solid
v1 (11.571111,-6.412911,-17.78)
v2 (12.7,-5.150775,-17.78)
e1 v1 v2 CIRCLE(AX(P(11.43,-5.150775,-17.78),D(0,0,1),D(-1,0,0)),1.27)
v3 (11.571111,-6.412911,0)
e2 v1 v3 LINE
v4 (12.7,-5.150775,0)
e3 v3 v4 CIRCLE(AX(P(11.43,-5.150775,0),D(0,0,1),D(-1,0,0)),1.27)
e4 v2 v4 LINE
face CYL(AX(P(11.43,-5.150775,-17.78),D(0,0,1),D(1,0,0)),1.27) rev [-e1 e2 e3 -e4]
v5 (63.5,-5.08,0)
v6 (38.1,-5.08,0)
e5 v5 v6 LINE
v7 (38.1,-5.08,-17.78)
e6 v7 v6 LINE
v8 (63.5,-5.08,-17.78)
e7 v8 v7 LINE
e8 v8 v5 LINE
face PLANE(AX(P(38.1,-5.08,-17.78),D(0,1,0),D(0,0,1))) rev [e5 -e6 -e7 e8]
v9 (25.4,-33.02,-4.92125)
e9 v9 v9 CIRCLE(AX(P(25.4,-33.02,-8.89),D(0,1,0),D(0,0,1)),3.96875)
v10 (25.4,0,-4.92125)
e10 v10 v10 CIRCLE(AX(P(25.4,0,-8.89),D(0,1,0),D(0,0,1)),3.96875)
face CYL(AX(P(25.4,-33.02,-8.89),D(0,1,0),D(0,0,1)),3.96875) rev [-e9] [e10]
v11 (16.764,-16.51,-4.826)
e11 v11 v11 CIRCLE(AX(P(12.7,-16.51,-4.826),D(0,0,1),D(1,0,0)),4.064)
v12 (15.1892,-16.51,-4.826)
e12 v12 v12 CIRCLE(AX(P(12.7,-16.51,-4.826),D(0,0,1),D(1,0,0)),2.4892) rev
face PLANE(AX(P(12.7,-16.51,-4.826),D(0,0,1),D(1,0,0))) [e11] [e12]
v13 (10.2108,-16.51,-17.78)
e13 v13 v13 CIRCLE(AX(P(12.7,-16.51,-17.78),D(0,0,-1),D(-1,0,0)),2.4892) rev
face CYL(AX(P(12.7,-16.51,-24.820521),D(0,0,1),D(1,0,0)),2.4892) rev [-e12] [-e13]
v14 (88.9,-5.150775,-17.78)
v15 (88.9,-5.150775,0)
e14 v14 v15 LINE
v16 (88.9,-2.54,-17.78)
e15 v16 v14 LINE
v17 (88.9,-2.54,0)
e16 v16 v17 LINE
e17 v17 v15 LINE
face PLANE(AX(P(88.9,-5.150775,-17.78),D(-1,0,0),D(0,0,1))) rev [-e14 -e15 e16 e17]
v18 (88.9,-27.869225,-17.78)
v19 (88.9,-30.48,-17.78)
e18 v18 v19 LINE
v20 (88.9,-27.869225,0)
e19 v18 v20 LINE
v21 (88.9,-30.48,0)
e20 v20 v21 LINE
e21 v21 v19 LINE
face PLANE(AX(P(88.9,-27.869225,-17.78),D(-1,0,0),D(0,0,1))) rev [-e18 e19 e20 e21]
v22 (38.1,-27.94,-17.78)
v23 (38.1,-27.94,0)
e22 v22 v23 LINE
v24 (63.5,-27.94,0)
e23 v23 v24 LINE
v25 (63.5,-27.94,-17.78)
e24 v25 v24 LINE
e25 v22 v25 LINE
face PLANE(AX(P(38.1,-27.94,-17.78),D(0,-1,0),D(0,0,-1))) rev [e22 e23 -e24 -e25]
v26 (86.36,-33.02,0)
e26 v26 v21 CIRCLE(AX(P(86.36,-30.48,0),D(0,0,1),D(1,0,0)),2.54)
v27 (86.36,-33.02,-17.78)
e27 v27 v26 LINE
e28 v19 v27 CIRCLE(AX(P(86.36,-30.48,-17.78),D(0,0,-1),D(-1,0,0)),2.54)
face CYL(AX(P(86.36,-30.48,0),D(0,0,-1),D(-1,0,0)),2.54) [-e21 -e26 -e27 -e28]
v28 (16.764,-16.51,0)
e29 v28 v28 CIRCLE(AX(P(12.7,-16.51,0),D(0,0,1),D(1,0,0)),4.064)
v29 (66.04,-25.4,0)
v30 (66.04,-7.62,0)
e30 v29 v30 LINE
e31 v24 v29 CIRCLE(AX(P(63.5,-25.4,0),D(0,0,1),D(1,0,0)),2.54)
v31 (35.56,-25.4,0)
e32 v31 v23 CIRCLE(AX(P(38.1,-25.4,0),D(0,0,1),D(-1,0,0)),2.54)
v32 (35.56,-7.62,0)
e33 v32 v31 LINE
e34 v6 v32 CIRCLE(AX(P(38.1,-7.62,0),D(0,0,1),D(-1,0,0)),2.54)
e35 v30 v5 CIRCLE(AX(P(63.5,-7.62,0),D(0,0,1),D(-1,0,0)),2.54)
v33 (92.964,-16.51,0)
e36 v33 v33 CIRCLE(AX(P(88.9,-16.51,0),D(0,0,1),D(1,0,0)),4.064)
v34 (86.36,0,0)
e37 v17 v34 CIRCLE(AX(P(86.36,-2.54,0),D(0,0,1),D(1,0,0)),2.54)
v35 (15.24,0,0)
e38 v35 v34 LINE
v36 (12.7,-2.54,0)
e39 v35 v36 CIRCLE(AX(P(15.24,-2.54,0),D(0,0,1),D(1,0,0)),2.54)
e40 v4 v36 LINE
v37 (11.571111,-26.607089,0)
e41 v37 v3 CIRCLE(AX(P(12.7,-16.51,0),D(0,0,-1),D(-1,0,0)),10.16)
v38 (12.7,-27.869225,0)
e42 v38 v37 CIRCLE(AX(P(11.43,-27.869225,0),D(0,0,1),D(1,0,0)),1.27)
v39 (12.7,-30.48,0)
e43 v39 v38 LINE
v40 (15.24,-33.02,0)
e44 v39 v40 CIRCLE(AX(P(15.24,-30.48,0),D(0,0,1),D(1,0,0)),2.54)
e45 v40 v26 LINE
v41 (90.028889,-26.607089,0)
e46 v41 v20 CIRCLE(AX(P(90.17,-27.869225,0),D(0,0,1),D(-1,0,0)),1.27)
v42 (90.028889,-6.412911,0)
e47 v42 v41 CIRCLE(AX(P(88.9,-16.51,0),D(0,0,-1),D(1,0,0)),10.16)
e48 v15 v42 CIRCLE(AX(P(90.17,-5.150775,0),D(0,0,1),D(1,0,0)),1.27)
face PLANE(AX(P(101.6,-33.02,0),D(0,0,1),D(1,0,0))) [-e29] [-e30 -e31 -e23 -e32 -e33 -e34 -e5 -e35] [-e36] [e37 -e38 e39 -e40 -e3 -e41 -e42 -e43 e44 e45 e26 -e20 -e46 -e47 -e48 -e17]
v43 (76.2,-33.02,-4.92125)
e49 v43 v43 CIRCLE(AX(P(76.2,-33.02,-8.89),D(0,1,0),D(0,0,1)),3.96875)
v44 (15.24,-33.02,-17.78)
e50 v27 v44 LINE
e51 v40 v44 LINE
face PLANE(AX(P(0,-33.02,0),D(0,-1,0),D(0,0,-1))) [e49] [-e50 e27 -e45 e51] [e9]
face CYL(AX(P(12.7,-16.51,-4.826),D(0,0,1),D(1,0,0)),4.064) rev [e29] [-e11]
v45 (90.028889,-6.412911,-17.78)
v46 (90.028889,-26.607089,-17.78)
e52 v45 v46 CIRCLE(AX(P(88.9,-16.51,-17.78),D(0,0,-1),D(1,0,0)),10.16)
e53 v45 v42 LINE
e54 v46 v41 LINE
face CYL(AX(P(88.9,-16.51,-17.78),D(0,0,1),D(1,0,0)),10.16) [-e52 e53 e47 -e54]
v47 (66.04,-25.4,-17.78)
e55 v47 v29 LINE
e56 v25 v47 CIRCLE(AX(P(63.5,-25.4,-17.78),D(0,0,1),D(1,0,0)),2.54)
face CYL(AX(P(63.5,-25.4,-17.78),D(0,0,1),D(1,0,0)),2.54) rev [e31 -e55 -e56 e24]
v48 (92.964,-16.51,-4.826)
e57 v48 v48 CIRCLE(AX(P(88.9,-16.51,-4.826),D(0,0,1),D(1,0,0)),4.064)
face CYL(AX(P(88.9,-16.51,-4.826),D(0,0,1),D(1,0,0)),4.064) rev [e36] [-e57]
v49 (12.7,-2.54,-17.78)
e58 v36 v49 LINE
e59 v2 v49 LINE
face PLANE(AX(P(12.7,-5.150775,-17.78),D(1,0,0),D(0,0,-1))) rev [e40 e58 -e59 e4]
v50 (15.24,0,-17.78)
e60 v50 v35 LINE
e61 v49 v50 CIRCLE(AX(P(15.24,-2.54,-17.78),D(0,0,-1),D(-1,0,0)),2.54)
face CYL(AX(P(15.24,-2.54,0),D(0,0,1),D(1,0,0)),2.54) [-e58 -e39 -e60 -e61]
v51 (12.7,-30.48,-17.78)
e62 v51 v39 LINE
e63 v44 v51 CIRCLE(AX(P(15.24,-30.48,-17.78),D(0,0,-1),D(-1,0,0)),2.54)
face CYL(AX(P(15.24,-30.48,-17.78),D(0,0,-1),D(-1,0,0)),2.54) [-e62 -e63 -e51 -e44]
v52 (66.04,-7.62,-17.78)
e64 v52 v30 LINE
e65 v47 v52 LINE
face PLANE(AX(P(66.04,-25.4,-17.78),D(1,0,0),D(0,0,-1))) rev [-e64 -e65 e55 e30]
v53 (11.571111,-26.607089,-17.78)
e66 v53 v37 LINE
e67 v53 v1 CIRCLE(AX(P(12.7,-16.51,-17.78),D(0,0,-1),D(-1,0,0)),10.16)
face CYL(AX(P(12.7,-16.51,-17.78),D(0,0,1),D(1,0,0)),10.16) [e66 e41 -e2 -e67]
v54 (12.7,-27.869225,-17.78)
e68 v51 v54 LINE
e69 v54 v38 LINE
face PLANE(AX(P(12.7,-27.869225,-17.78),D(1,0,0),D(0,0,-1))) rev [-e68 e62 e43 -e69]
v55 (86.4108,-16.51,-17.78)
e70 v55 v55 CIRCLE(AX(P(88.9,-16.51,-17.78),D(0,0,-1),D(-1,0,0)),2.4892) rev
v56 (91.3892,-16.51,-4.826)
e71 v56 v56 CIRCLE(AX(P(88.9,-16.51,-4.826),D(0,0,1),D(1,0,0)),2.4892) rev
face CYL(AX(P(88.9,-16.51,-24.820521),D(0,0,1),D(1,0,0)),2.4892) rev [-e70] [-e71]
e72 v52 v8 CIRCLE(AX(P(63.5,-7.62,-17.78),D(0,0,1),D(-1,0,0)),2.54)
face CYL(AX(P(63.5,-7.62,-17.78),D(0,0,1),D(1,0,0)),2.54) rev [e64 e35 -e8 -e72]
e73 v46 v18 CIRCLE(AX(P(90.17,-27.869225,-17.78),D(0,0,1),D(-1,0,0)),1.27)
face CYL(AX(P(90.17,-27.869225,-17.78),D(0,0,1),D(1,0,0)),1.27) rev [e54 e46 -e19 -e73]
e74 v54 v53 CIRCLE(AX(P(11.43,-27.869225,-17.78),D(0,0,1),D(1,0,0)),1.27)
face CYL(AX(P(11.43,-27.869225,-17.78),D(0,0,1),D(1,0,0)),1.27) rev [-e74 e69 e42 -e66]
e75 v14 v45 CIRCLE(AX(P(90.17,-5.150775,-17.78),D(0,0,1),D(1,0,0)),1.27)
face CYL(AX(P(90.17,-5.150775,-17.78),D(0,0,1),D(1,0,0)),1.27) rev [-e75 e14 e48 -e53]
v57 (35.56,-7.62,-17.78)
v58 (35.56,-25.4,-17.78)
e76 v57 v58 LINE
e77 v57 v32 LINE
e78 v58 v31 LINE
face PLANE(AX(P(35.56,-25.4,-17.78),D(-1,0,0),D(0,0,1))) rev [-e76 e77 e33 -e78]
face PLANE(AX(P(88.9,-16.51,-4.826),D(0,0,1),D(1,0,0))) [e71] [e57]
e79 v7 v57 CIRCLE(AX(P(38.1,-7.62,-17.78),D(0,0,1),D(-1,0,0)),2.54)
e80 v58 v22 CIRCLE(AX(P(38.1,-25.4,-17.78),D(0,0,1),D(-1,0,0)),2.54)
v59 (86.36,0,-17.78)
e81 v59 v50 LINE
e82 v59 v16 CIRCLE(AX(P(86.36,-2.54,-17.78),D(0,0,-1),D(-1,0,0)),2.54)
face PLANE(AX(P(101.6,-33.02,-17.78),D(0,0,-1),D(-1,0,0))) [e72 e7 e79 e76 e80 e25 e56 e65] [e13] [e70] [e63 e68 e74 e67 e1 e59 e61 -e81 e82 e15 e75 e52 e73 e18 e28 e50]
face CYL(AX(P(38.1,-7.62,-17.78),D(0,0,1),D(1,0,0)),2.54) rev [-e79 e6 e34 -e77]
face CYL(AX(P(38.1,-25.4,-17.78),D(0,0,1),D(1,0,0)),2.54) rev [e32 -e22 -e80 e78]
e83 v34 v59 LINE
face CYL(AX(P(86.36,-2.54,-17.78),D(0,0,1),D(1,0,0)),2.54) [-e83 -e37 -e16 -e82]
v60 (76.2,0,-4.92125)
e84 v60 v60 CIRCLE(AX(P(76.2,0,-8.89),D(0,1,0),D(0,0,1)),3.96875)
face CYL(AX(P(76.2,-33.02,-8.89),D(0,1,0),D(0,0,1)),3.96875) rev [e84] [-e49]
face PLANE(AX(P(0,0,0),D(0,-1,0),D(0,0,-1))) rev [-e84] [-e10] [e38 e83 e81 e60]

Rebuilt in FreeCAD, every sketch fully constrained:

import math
import FreeCAD as App
import Part
import Sketcher
from FreeCAD import Vector
Q = App.Units.Quantity


def edges_at(feature, points):
    """Names of the edges that pass closest to the given points."""
    edges = feature.Shape.Edges
    near = lambda p: min(range(len(edges)), key=lambda i: edges[i].distToShape(Part.Vertex(*p))[0])
    return sorted({f"Edge{near(p) + 1}" for p in points})


def add_polygon(sketch, points):
    """Adds a closed chain of lines whose ends are joined by coincident constraints."""
    first, n = sketch.GeometryCount, len(points)
    for a, b in zip(points, points[1:] + points[:1]):
        sketch.addGeometry(Part.LineSegment(App.Vector(*a, 0), App.Vector(*b, 0)), False)
    for i in range(n):
        sketch.addConstraint(Sketcher.Constraint("Coincident", first + i, 2, first + (i + 1) % n, 1))

doc = App.newDocument("Part")
params = doc.addObject("Spreadsheet::Sheet", "Params")
for row, (alias, value) in enumerate([
    ("sketch1_width", "4 in"),
    ("sketch1_diameter", "0.3125 in"),
    ("sketch1_height", "0.7 in"),
    ("pad1_length", "1.3 in"),
    ("sketch2_diameter", "0.196 in"),
    ("pocket1_length", "0.7 in"),
    ("sketch3_diameter", "0.32 in"),
    ("pocket2_length", "0.19 in"),
    ("sketch4_radius", "0.4 in"),
    ("sketch4_radius2", "0.05 in"),
    ("sketch4_width", "0.5 in"),
    ("sketch4_height", "1.3 in"),
    ("fillet_radius", "0.1 in"),
    ("sketch5_radius", "0.1 in"),
    ("sketch5_width", "1 in"),
    ("sketch5_height", "0.7 in"),
], start=1):
    params.set(f"A{row}", alias)
    params.set(f"B{row}", "=" + value)
    params.setAlias(f"B{row}", alias)

body = doc.addObject("PartDesign::Body", "Body")

sketch1 = body.newObject("Sketcher::SketchObject", "Sketch")
sketch1.AttachmentSupport = (doc.getObject("XZ_Plane"), [""])
sketch1.MapMode = "FlatFace"
add_polygon(sketch1, [(0, -17.8), (0, 0), (101.6, 0), (101.6, -17.8)])
sketch1.addGeometry(Part.Circle(Vector(25.4, -8.9, 0), Vector(0, 0, 1), 4), False)
sketch1.addGeometry(Part.Circle(Vector(76.2, -8.9, 0), Vector(0, 0, 1), 4), False)
sketch1.addConstraint([
    Sketcher.Constraint("Vertical", 0),
    Sketcher.Constraint("Horizontal", 1),
    Sketcher.Constraint("Vertical", 2),
    Sketcher.Constraint("Horizontal", 3),
    Sketcher.Constraint("Coincident", 0, 2, -1, 1),
    Sketcher.Constraint("Equal", 4, 5),
    Sketcher.Constraint("Horizontal", 4, 3, 5, 3),
    Sketcher.Constraint("DistanceX", 1, 1, 1, 2, Q("4 in")),
    Sketcher.Constraint("Diameter", 4, Q("0.3125 in")),
    Sketcher.Constraint("DistanceY", 0, 1, 0, 2, Q("0.7 in")),
    Sketcher.Constraint("DistanceX", -1, 1, 4, 3, Q("1 in")),
    Sketcher.Constraint("DistanceX", -1, 1, 5, 3, Q("3 in")),
    Sketcher.Constraint("DistanceY", 4, 3, -1, 1, Q("0.35 in")),
])
sketch1.setExpression("Constraints[11]", "Params.sketch1_width")
sketch1.setExpression("Constraints[12]", "Params.sketch1_diameter")
sketch1.setExpression("Constraints[13]", "Params.sketch1_height")
pad1 = body.newObject("PartDesign::Pad", "Pad")
pad1.Profile = sketch1
pad1.setExpression("Length", "Params.pad1_length")

sketch2 = body.newObject("Sketcher::SketchObject", "Sketch001")
sketch2.AttachmentSupport = (doc.getObject("XY_Plane"), [""])
sketch2.MapMode = "FlatFace"
sketch2.addGeometry([
    Part.Circle(Vector(88.9, -16.5, 0), Vector(0, 0, 1), 2.5),
    Part.Circle(Vector(12.7, -16.5, 0), Vector(0, 0, 1), 2.5),
], False)
sketch2.addConstraint([
    Sketcher.Constraint("Equal", 0, 1),
    Sketcher.Constraint("Horizontal", 0, 3, 1, 3),
    Sketcher.Constraint("Diameter", 0, Q("0.196 in")),
    Sketcher.Constraint("DistanceX", 1, 3, 0, 3, Q("3 in")),
    Sketcher.Constraint("DistanceX", -1, 1, 0, 3, Q("3.5 in")),
    Sketcher.Constraint("DistanceY", 0, 3, -1, 1, Q("0.65 in")),
])
sketch2.setExpression("Constraints[2]", "Params.sketch2_diameter")
pocket1 = body.newObject("PartDesign::Pocket", "Pocket")
pocket1.Profile = sketch2
pocket1.setExpression("Length", "Params.pocket1_length")

sketch3 = body.newObject("Sketcher::SketchObject", "Sketch002")
sketch3.AttachmentSupport = (doc.getObject("XY_Plane"), [""])
sketch3.MapMode = "FlatFace"
sketch3.addGeometry([
    Part.Circle(Vector(88.9, -16.5, 0), Vector(0, 0, 1), 4.1),
    Part.Circle(Vector(12.7, -16.5, 0), Vector(0, 0, 1), 4.1),
], False)
sketch3.addConstraint([
    Sketcher.Constraint("Equal", 0, 1),
    Sketcher.Constraint("Horizontal", 0, 3, 1, 3),
    Sketcher.Constraint("Diameter", 0, Q("0.32 in")),
    Sketcher.Constraint("DistanceX", 1, 3, 0, 3, Q("3 in")),
    Sketcher.Constraint("DistanceX", -1, 1, 0, 3, Q("3.5 in")),
    Sketcher.Constraint("DistanceY", 0, 3, -1, 1, Q("0.65 in")),
])
sketch3.setExpression("Constraints[2]", "Params.sketch3_diameter")
pocket2 = body.newObject("PartDesign::Pocket", "Pocket001")
pocket2.Profile = sketch3
pocket2.setExpression("Length", "Params.pocket2_length")

sketch4 = body.newObject("Sketcher::SketchObject", "Sketch003")
sketch4.AttachmentSupport = (doc.getObject("XY_Plane"), [""])
sketch4.MapMode = "FlatFace"
sketch4.addGeometry([
    Part.LineSegment(Vector(12.7, -5.2, 0), Vector(12.7, 0, 0)),
    Part.LineSegment(Vector(12.7, 0, 0), Vector(0, 0, 0)),
    Part.LineSegment(Vector(0, 0, 0), Vector(0, -33, 0)),
    Part.LineSegment(Vector(0, -33, 0), Vector(12.7, -33, 0)),
    Part.LineSegment(Vector(12.7, -33, 0), Vector(12.7, -27.9, 0)),
    Part.ArcOfCircle(Part.Circle(Vector(11.4, -27.9, 0), Vector(0, 0, 1), 1.3), math.radians(0), math.radians(84)),
    Part.ArcOfCircle(Part.Circle(Vector(12.7, -16.5, 0), Vector(0, 0, 1), 10.2), math.radians(96), math.radians(264)),
    Part.ArcOfCircle(Part.Circle(Vector(11.4, -5.2, 0), Vector(0, 0, 1), 1.3), math.radians(-84), math.radians(0)),
    Part.LineSegment(Vector(88.9, 0, 0), Vector(88.9, -5.2, 0)),
    Part.ArcOfCircle(Part.Circle(Vector(90.2, -5.2, 0), Vector(0, 0, 1), 1.3), math.radians(-180), math.radians(-96)),
    Part.ArcOfCircle(Part.Circle(Vector(88.9, -16.5, 0), Vector(0, 0, 1), 10.2), math.radians(-84), math.radians(84)),
    Part.ArcOfCircle(Part.Circle(Vector(90.2, -27.9, 0), Vector(0, 0, 1), 1.3), math.radians(96), math.radians(180)),
    Part.LineSegment(Vector(88.9, -27.9, 0), Vector(88.9, -33, 0)),
    Part.LineSegment(Vector(88.9, -33, 0), Vector(101.6, -33, 0)),
    Part.LineSegment(Vector(101.6, -33, 0), Vector(101.6, 0, 0)),
    Part.LineSegment(Vector(101.6, 0, 0), Vector(88.9, 0, 0)),
], False)
sketch4.addConstraint([
    Sketcher.Constraint("Coincident", 0, 2, 1, 1),
    Sketcher.Constraint("Coincident", 1, 2, 2, 1),
    Sketcher.Constraint("Coincident", 2, 2, 3, 1),
    Sketcher.Constraint("Coincident", 3, 2, 4, 1),
    Sketcher.Constraint("Tangent", 4, 2, 5, 1),
    Sketcher.Constraint("Tangent", 5, 2, 6, 2),
    Sketcher.Constraint("Tangent", 6, 1, 7, 1),
    Sketcher.Constraint("Tangent", 7, 2, 0, 1),
    Sketcher.Constraint("Tangent", 8, 2, 9, 1),
    Sketcher.Constraint("Tangent", 9, 2, 10, 2),
    Sketcher.Constraint("Tangent", 10, 1, 11, 1),
    Sketcher.Constraint("Tangent", 11, 2, 12, 1),
    Sketcher.Constraint("Coincident", 12, 2, 13, 1),
    Sketcher.Constraint("Coincident", 13, 2, 14, 1),
    Sketcher.Constraint("Coincident", 14, 2, 15, 1),
    Sketcher.Constraint("Coincident", 15, 2, 8, 1),
    Sketcher.Constraint("Vertical", 0),
    Sketcher.Constraint("Horizontal", 1),
    Sketcher.Constraint("Vertical", 2),
    Sketcher.Constraint("Horizontal", 3),
    Sketcher.Constraint("Vertical", 4),
    Sketcher.Constraint("Vertical", 8),
    Sketcher.Constraint("Vertical", 12),
    Sketcher.Constraint("Horizontal", 13),
    Sketcher.Constraint("Vertical", 14),
    Sketcher.Constraint("Horizontal", 15),
    Sketcher.Constraint("Coincident", 1, 2, -1, 1),
    Sketcher.Constraint("Equal", 5, 7),
    Sketcher.Constraint("Equal", 7, 9),
    Sketcher.Constraint("Equal", 6, 10),
    Sketcher.Constraint("Equal", 9, 11),
    Sketcher.Constraint("PointOnObject", 14, 2, -1),
    Sketcher.Constraint("Horizontal", 7, 3, 9, 3),
    Sketcher.Constraint("Horizontal", 6, 3, 10, 3),
    Sketcher.Constraint("Horizontal", 5, 3, 11, 3),
    Sketcher.Constraint("Horizontal", 3, 2, 12, 2),
    Sketcher.Constraint("Vertical", 5, 3, 7, 3),
    Sketcher.Constraint("Vertical", 6, 3, 0, 2),
    Sketcher.Constraint("Equal", 3, 13),
    Sketcher.Constraint("Equal", 0, 4),
    Sketcher.Constraint("Radius", 6, Q("0.4 in")),
    Sketcher.Constraint("Radius", 5, Q("0.05 in")),
    Sketcher.Constraint("DistanceX", 1, 2, 1, 1, Q("0.5 in")),
    Sketcher.Constraint("DistanceY", 2, 2, 2, 1, Q("1.3 in")),
    Sketcher.Constraint("DistanceX", -1, 1, 13, 2, Q("4 in")),
])
sketch4.setExpression("Constraints[40]", "Params.sketch4_radius")
sketch4.setExpression("Constraints[41]", "Params.sketch4_radius2")
sketch4.setExpression("Constraints[42]", "Params.sketch4_width")
sketch4.setExpression("Constraints[43]", "Params.sketch4_height")
pocket3 = body.newObject("PartDesign::Pocket", "Pocket002")
pocket3.Profile = sketch4
pocket3.Type = "ThroughAll"
doc.recompute()

fillet = body.newObject("PartDesign::Fillet", "Fillet")
fillet.Base = (pocket3, edges_at(pocket3, [
    (12.7, -33.02, -8.89),
    (12.7, 0, -8.89),
    (88.9, 0, -8.89),
    (88.9, -33.02, -8.89),
]))
fillet.setExpression("Radius", "Params.fillet_radius")

sketch5 = body.newObject("Sketcher::SketchObject", "Sketch004")
sketch5.AttachmentSupport = (doc.getObject("XY_Plane"), [""])
sketch5.MapMode = "FlatFace"
sketch5.addGeometry([
    Part.LineSegment(Vector(38.1, -27.9, 0), Vector(63.5, -27.9, 0)),
    Part.ArcOfCircle(Part.Circle(Vector(63.5, -25.4, 0), Vector(0, 0, 1), 2.5), math.radians(-90), math.radians(0)),
    Part.LineSegment(Vector(66, -25.4, 0), Vector(66, -7.6, 0)),
    Part.ArcOfCircle(Part.Circle(Vector(63.5, -7.6, 0), Vector(0, 0, 1), 2.5), math.radians(0), math.radians(90)),
    Part.LineSegment(Vector(63.5, -5.1, 0), Vector(38.1, -5.1, 0)),
    Part.ArcOfCircle(Part.Circle(Vector(38.1, -7.6, 0), Vector(0, 0, 1), 2.5), math.radians(90), math.radians(180)),
    Part.LineSegment(Vector(35.6, -7.6, 0), Vector(35.6, -25.4, 0)),
    Part.ArcOfCircle(Part.Circle(Vector(38.1, -25.4, 0), Vector(0, 0, 1), 2.5), math.radians(-180), math.radians(-90)),
], False)
sketch5.addConstraint([
    Sketcher.Constraint("Tangent", 0, 2, 1, 1),
    Sketcher.Constraint("Tangent", 1, 2, 2, 1),
    Sketcher.Constraint("Tangent", 2, 2, 3, 1),
    Sketcher.Constraint("Tangent", 3, 2, 4, 1),
    Sketcher.Constraint("Tangent", 4, 2, 5, 1),
    Sketcher.Constraint("Tangent", 5, 2, 6, 1),
    Sketcher.Constraint("Tangent", 6, 2, 7, 1),
    Sketcher.Constraint("Tangent", 7, 2, 0, 1),
    Sketcher.Constraint("Horizontal", 0),
    Sketcher.Constraint("Vertical", 2),
    Sketcher.Constraint("Horizontal", 4),
    Sketcher.Constraint("Vertical", 6),
    Sketcher.Constraint("Equal", 1, 3),
    Sketcher.Constraint("Equal", 3, 5),
    Sketcher.Constraint("Equal", 5, 7),
    Sketcher.Constraint("Radius", 1, Q("0.1 in")),
    Sketcher.Constraint("DistanceX", 0, 1, 0, 2, Q("1 in")),
    Sketcher.Constraint("DistanceY", 2, 1, 2, 2, Q("0.7 in")),
    Sketcher.Constraint("DistanceY", 1, 3, -1, 1, Q("1 in")),
    Sketcher.Constraint("DistanceX", -1, 1, 1, 3, Q("2.5 in")),
])
sketch5.setExpression("Constraints[15]", "Params.sketch5_radius")
sketch5.setExpression("Constraints[16]", "Params.sketch5_width")
sketch5.setExpression("Constraints[17]", "Params.sketch5_height")
pocket4 = body.newObject("PartDesign::Pocket", "Pocket003")
pocket4.Profile = sketch5
pocket4.Type = "ThroughAll"

doc.recompute()
